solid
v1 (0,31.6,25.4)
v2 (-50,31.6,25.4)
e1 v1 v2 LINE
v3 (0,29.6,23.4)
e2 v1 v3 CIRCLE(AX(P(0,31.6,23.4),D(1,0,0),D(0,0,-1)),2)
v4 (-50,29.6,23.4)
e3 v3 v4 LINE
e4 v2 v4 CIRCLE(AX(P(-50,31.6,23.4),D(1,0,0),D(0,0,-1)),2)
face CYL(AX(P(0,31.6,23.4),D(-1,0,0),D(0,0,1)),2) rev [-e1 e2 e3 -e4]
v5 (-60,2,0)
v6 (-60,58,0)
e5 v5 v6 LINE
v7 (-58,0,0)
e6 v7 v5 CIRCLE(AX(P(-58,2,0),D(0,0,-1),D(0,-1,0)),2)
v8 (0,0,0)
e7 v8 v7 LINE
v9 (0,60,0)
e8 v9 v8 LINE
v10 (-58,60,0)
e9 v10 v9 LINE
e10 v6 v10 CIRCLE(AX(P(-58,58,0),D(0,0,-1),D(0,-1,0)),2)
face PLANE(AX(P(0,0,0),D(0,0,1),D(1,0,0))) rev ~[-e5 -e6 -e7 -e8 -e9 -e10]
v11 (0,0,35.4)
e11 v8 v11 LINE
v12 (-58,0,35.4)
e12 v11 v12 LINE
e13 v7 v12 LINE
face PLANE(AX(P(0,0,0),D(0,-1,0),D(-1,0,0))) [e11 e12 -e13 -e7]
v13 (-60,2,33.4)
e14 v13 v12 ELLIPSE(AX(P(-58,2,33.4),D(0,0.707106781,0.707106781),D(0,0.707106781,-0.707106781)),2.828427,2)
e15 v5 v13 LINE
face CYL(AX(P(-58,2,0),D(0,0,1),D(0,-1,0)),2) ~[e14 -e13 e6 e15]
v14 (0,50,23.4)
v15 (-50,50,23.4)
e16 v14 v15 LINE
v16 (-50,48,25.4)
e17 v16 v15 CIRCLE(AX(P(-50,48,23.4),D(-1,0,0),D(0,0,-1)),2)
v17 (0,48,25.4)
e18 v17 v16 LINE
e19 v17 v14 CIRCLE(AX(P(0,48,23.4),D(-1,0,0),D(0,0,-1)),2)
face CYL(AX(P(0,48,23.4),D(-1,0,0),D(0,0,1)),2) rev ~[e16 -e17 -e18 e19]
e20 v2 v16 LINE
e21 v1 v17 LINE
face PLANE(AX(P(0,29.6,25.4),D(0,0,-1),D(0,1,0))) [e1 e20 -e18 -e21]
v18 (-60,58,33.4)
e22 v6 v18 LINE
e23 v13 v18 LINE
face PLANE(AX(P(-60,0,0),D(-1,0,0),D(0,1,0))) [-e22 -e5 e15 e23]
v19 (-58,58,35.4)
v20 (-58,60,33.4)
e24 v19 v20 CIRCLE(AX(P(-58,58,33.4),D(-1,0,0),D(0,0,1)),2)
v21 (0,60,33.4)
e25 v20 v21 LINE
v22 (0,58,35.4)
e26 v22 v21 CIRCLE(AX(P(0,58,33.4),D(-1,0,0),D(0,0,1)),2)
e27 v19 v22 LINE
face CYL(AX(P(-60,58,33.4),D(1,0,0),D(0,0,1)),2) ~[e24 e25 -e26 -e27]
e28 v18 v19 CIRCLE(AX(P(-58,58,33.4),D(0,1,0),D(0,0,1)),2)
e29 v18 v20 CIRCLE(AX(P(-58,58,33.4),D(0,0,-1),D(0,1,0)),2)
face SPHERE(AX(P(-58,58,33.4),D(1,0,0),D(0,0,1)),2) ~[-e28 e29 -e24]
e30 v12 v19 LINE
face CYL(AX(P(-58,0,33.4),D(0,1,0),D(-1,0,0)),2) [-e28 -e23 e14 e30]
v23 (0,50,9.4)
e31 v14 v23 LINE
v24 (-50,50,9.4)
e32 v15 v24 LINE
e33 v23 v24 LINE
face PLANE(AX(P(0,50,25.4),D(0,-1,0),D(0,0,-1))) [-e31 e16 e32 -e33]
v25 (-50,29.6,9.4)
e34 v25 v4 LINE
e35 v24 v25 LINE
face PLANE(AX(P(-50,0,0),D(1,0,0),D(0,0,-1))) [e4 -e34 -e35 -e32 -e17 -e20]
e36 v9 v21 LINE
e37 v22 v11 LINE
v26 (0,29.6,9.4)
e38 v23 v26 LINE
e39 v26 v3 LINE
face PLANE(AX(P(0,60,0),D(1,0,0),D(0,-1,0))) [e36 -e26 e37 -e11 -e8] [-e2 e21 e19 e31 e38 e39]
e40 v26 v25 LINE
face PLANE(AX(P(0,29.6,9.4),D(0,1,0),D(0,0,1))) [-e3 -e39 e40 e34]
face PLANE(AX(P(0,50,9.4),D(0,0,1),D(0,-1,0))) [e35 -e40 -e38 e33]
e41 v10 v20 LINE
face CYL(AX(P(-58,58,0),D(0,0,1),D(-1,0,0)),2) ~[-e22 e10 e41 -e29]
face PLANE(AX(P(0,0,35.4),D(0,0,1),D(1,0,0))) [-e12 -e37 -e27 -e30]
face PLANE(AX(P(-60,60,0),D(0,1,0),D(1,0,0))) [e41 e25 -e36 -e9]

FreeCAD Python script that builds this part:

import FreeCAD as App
import Part
import Sketcher

V = App.Vector


def edges_at(feature, points):
    """Names of the edges that pass closest to the given points."""
    edges = feature.Shape.Edges
    near = lambda p: min(range(len(edges)), key=lambda i: edges[i].distToShape(Part.Vertex(*p))[0])
    return sorted({f"Edge{near(p) + 1}" for p in points})


def add_polygon(sketch, points):
    """Adds a closed chain of lines whose ends are joined by coincident constraints."""
    first, n = sketch.GeometryCount, len(points)
    for a, b in zip(points, points[1:] + points[:1]):
        sketch.addGeometry(Part.LineSegment(App.Vector(*a, 0), App.Vector(*b, 0)), False)
    for i in range(n):
        sketch.addConstraint(Sketcher.Constraint("Coincident", first + i, 2, first + (i + 1) % n, 1))

doc = App.newDocument("Part")
params = doc.addObject("Spreadsheet::Sheet", "Params")
for row, (alias, value) in enumerate([
    ("sketch1_width", "60 mm"),
    ("pad1_length", "35.4 mm"),
    ("sketch2_height", "16 mm"),
    ("sketch2_width", "20.4 mm"),
    ("pocket1_length", "50 mm"),
    ("fillet_radius", "2 mm"),
], start=1):
    params.set(f"A{row}", alias)
    params.set(f"B{row}", "=" + value)
    params.setAlias(f"B{row}", alias)

body = doc.addObject("PartDesign::Body", "Body")

# Sketch on XY plane
sketch1 = body.newObject("Sketcher::SketchObject", "Sketch")
sketch1.AttachmentSupport = (doc.getObject("XY_Plane"), [""])
sketch1.MapMode = "FlatFace"
add_polygon(sketch1, [(-60, 0), (0, 0), (0, 60), (-60, 60)])  # lines 0-3
sketch1.addConstraint(Sketcher.Constraint("Horizontal", 0))
sketch1.addConstraint(Sketcher.Constraint("Vertical", 1))
sketch1.addConstraint(Sketcher.Constraint("Horizontal", 2))
sketch1.addConstraint(Sketcher.Constraint("Vertical", 3))
sketch1.addConstraint(Sketcher.Constraint("Coincident", 0, 2, -1, 1))
sketch1.addConstraint(Sketcher.Constraint("Equal", 2, 1))
sketch1.addConstraint(Sketcher.Constraint("DistanceX", 0, 1, 0, 2, 60.0))
sketch1.setExpression("Constraints[10]", "Params.sketch1_width")
pad1 = body.newObject("PartDesign::Pad", "Pad")
pad1.Profile = sketch1
pad1.setExpression("Length", "Params.pad1_length")

# Sketch on YZ plane
sketch2 = body.newObject("Sketcher::SketchObject", "Sketch001")
sketch2.AttachmentSupport = (doc.getObject("YZ_Plane"), [""])
sketch2.MapMode = "FlatFace"
add_polygon(sketch2, [(50, 9.4), (50, 25.4), (29.6, 25.4), (29.6, 9.4)])  # lines 0-3
sketch2.addConstraint(Sketcher.Constraint("Vertical", 0))
sketch2.addConstraint(Sketcher.Constraint("Horizontal", 1))
sketch2.addConstraint(Sketcher.Constraint("Vertical", 2))
sketch2.addConstraint(Sketcher.Constraint("Horizontal", 3))
sketch2.addConstraint(Sketcher.Constraint("DistanceY", 0, 1, 0, 2, 16.0))
sketch2.addConstraint(Sketcher.Constraint("DistanceX", 1, 2, 1, 1, 20.4))
sketch2.addConstraint(Sketcher.Constraint("DistanceX", -1, 1, 0, 2, 50.0))
sketch2.addConstraint(Sketcher.Constraint("DistanceY", -1, 1, 0, 2, 25.4))
sketch2.setExpression("Constraints[8]", "Params.sketch2_height")
sketch2.setExpression("Constraints[9]", "Params.sketch2_width")
pocket1 = body.newObject("PartDesign::Pocket", "Pocket")
pocket1.Profile = sketch2
pocket1.setExpression("Length", "Params.pocket1_length")
doc.recompute()

fillet = body.newObject("PartDesign::Fillet", "Fillet")
fillet.Base = (pocket1, edges_at(pocket1, [
    (-30, 60, 35.4),
    (-25, 29.6, 25.4),
    (-25, 50, 25.4),
    (-60, 30, 35.4),
    (-60, 0, 17.7),
    (-60, 60, 17.7),
]))
fillet.setExpression("Radius", "Params.fillet_radius")

doc.recompute()
